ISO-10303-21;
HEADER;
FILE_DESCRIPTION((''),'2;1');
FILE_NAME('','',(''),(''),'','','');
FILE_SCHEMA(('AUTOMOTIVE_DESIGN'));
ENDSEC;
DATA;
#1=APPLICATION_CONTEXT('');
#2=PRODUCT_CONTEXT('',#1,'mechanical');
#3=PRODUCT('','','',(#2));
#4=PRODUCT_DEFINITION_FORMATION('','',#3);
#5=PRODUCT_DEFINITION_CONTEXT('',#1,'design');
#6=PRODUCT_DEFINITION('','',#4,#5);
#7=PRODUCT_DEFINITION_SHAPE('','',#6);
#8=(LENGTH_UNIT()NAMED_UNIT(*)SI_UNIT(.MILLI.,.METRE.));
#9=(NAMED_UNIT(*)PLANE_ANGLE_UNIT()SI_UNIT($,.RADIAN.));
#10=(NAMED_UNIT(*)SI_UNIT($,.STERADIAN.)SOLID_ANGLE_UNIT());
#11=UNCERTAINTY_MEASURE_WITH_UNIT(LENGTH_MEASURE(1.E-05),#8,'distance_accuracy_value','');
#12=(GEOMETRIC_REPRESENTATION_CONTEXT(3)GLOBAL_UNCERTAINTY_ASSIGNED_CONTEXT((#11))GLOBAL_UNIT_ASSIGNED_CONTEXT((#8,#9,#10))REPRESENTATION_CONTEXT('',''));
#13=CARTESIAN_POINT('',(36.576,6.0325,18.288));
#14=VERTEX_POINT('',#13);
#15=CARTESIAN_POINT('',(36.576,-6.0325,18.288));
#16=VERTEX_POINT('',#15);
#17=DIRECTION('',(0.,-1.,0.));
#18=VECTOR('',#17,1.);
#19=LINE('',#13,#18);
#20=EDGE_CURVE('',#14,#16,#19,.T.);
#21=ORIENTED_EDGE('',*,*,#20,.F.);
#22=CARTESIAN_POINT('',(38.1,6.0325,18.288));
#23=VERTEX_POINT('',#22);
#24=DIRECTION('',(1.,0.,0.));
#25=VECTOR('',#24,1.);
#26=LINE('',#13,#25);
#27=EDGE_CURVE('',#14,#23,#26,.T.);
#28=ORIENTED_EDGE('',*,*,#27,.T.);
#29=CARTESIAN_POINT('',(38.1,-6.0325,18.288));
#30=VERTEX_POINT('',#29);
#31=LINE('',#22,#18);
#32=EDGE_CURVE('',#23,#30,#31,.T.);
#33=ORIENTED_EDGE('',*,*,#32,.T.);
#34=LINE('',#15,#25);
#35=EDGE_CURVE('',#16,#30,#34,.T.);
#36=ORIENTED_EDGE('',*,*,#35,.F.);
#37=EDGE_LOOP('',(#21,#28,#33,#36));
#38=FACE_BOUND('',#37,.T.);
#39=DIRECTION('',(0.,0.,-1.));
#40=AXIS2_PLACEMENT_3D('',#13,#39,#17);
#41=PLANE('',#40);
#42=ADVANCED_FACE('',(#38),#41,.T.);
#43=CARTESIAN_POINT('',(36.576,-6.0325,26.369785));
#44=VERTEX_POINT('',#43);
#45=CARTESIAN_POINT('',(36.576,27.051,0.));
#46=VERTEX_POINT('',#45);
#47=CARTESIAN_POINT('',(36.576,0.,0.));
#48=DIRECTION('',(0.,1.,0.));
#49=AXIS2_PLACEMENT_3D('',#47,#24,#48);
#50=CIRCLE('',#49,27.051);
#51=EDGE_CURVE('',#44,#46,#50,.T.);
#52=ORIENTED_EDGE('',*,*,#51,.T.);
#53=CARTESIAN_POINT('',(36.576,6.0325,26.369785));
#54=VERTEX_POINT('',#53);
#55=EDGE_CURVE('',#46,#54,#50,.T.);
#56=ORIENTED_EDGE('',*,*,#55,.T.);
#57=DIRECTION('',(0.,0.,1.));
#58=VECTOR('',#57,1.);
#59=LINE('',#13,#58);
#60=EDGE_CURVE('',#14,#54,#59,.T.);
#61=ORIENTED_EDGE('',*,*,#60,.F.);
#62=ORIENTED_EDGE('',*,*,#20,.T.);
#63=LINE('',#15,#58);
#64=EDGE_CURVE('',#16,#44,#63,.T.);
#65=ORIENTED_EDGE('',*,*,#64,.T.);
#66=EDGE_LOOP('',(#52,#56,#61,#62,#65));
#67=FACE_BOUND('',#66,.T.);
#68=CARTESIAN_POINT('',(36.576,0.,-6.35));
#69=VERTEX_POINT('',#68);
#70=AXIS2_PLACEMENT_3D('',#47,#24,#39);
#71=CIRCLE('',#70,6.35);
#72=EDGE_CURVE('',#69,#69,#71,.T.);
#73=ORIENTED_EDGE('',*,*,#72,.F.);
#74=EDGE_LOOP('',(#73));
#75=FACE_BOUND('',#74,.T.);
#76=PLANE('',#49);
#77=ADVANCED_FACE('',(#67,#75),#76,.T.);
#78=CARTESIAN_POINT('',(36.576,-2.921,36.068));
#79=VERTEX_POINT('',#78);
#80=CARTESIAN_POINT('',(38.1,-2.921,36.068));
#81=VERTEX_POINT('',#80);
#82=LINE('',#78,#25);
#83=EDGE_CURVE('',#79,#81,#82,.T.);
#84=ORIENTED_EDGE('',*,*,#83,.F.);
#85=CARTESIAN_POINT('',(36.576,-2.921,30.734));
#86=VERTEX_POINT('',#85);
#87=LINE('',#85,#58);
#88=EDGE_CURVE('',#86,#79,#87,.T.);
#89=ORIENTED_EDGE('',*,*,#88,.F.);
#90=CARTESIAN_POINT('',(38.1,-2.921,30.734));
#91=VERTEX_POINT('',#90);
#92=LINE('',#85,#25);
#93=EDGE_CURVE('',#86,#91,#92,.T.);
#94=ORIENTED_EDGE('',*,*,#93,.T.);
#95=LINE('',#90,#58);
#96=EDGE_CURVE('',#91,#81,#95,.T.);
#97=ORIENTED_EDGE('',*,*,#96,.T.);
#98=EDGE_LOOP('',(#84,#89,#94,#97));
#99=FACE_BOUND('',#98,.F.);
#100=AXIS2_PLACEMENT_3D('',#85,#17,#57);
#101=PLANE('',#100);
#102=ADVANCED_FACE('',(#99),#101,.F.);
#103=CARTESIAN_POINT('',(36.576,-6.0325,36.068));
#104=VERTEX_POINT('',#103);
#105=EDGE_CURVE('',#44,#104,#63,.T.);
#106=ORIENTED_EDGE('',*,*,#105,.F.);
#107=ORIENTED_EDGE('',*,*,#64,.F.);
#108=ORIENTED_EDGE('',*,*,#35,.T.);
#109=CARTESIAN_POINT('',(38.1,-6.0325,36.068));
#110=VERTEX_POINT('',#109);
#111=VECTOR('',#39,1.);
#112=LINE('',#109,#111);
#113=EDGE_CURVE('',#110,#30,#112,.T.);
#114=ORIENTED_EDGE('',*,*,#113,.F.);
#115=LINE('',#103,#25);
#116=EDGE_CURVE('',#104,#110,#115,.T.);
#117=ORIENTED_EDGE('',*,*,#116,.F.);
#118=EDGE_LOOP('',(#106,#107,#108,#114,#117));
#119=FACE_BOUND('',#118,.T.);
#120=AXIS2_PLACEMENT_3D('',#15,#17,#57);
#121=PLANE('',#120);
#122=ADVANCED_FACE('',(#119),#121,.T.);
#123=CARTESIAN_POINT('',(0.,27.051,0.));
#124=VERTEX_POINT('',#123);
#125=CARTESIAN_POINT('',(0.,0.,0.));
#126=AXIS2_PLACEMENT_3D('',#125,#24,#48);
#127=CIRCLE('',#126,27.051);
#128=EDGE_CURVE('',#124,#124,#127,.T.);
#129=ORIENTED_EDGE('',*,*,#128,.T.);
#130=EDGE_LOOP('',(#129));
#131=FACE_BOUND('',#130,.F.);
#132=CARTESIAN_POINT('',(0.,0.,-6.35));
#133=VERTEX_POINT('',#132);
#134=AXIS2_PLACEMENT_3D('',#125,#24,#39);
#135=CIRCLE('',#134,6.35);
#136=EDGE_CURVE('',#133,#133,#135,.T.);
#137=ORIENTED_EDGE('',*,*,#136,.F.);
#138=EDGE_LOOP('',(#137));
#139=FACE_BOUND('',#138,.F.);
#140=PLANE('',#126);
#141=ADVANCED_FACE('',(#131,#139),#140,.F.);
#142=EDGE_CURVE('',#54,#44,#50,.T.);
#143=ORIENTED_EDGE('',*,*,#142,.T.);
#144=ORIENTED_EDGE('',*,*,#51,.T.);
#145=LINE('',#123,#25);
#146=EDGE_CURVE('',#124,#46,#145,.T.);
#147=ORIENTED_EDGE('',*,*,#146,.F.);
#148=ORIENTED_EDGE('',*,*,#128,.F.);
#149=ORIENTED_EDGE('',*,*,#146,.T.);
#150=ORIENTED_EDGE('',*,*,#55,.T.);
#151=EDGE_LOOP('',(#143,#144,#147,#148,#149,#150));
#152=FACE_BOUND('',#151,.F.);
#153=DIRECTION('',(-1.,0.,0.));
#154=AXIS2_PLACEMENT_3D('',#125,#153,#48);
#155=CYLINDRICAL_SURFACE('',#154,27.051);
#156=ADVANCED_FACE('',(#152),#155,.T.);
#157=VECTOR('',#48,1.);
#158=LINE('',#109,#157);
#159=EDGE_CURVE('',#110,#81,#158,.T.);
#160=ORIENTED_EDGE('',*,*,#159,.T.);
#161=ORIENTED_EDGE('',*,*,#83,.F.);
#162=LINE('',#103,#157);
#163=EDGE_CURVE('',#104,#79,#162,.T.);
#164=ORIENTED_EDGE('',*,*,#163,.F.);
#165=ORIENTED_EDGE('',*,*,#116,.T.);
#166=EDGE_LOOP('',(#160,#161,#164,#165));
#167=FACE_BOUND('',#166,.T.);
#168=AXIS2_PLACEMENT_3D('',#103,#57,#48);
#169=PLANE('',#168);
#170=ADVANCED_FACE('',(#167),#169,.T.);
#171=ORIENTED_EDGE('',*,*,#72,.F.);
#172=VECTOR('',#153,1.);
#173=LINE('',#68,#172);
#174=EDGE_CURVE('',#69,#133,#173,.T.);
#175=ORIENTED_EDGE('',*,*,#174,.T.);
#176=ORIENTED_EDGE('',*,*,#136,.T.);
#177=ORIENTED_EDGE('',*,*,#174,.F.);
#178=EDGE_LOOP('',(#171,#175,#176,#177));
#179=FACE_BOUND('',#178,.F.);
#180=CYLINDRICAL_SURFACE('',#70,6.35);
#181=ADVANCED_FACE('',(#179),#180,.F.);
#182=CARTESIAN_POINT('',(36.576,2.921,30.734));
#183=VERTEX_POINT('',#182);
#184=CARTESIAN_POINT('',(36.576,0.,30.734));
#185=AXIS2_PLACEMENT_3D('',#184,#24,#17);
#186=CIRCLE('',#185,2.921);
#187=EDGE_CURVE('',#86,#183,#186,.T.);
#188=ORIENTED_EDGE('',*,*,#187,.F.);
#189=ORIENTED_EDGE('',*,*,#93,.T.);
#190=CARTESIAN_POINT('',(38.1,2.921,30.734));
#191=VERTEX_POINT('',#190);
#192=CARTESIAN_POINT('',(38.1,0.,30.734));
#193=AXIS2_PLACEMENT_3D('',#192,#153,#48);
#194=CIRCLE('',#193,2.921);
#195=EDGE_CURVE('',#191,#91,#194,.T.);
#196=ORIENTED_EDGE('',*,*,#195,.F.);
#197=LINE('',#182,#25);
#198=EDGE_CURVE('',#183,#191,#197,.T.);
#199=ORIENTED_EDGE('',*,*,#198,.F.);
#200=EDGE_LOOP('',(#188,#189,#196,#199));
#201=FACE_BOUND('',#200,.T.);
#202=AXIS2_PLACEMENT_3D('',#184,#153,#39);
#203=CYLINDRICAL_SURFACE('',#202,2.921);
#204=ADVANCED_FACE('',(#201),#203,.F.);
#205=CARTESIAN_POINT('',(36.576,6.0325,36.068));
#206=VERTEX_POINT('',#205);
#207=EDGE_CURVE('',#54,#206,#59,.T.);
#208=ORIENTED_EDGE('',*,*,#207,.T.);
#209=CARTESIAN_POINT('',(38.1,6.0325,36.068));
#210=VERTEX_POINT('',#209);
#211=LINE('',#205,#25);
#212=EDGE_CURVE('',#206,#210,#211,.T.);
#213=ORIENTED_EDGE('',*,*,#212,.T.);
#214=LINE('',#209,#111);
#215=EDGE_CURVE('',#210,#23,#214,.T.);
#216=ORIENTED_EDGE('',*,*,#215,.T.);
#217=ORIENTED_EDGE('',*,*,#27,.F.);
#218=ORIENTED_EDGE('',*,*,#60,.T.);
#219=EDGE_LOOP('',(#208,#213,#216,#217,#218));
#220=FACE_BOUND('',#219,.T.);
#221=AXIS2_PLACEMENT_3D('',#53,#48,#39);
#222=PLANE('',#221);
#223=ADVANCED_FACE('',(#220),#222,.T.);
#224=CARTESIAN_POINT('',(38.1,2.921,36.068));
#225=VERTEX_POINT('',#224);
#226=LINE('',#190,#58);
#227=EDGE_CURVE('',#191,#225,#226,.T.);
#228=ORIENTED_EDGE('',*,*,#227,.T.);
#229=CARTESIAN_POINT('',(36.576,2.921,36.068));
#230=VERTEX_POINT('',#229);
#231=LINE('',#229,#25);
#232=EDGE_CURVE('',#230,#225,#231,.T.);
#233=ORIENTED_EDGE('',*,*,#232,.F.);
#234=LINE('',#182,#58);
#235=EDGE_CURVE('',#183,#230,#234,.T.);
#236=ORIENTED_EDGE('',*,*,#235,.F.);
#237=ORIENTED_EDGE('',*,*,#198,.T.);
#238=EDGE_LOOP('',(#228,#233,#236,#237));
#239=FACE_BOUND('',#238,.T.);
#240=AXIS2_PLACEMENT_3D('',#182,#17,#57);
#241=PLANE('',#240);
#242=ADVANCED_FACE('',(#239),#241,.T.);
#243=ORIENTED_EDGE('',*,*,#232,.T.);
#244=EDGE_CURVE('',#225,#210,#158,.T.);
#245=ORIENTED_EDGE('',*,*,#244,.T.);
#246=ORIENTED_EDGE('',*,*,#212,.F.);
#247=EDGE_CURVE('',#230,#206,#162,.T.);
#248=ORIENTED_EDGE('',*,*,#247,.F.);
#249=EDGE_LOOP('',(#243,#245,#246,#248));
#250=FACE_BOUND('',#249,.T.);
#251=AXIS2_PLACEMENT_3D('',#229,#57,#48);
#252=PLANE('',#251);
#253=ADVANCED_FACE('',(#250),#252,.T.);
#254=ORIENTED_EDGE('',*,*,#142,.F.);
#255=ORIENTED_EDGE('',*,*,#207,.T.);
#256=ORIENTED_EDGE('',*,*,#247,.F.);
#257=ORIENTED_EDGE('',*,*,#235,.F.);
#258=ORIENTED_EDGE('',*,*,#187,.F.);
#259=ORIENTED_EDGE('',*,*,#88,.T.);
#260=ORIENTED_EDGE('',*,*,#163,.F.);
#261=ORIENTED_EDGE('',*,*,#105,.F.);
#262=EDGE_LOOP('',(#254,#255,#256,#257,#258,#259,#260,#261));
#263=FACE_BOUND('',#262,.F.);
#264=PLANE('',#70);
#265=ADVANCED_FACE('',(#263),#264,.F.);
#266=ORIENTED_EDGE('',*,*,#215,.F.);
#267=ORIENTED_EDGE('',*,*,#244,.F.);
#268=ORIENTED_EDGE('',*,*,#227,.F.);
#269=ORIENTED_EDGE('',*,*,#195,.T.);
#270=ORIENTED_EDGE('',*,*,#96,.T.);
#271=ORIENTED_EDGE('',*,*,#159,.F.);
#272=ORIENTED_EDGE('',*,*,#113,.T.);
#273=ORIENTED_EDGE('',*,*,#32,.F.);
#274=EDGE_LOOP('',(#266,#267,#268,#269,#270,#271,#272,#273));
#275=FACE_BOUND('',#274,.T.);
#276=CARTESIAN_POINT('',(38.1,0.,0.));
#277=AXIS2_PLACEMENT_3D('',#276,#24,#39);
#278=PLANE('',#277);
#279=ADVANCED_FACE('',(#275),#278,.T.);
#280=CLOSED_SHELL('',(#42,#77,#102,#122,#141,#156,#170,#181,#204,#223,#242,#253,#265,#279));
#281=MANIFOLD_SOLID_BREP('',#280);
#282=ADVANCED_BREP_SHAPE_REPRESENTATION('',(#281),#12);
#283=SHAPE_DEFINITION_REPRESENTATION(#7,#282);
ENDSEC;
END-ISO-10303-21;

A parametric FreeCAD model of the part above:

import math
import FreeCAD as App
import Part
import Sketcher
Q = App.Units.Quantity

doc = App.newDocument("Part")
body = doc.addObject("PartDesign::Body", "Body")

sketch1 = body.newObject("Sketcher::SketchObject", "Sketch")
sketch1.AttachmentSupport = (doc.getObject("YZ_Plane"), [""])
sketch1.MapMode = "FlatFace"
sketch1.addGeometry(Part.Circle(App.Vector(0, 0, 0), App.Vector(0, 0, 1), 27), False)
sketch1.addConstraint([
    Sketcher.Constraint("Coincident", 0, 3, -1, 1),
    Sketcher.Constraint("Diameter", 0, Q("2.13 in")),
])
pad1 = body.newObject("PartDesign::Pad", "Pad")
pad1.Profile = sketch1
pad1.Length = Q("1.44 in")

sketch2 = body.newObject("Sketcher::SketchObject", "Sketch001")
sketch2.AttachmentSupport = (doc.getObject("YZ_Plane"), [""])
sketch2.MapMode = "FlatFace"
sketch2.AttachmentOffset = App.Placement(App.Vector(0, 0, 1.44 * 25.4), App.Rotation())
sketch2.addGeometry(Part.Circle(App.Vector(0, 0, 0), App.Vector(0, 0, 1), 6), False)
sketch2.addConstraint([
    Sketcher.Constraint("Coincident", 0, 3, -1, 1),
    Sketcher.Constraint("Diameter", 0, Q("0.5 in")),
])
pocket1 = body.newObject("PartDesign::Pocket", "Pocket")
pocket1.Profile = sketch2
pocket1.Type = "ThroughAll"

sketch3 = body.newObject("Sketcher::SketchObject", "Sketch002")
sketch3.AttachmentSupport = (doc.getObject("YZ_Plane"), [""])
sketch3.MapMode = "FlatFace"
sketch3.AttachmentOffset = App.Placement(App.Vector(0, 0, 1.44 * 25.4), App.Rotation())
sketch3.addGeometry([
    Part.LineSegment(App.Vector(6, 18.3, 0), App.Vector(6, 36.1, 0)),
    Part.LineSegment(App.Vector(6, 36.1, 0), App.Vector(2.9, 36.1, 0)),
    Part.LineSegment(App.Vector(2.9, 36.1, 0), App.Vector(2.9, 30.7, 0)),
    Part.ArcOfCircle(Part.Circle(App.Vector(0, 30.7, 0), App.Vector(0, 0, 1), 2.9), math.radians(180), math.radians(360)),
    Part.LineSegment(App.Vector(-2.9, 30.7, 0), App.Vector(-2.9, 36.1, 0)),
    Part.LineSegment(App.Vector(-2.9, 36.1, 0), App.Vector(-6, 36.1, 0)),
    Part.LineSegment(App.Vector(-6, 36.1, 0), App.Vector(-6, 18.3, 0)),
    Part.LineSegment(App.Vector(-6, 18.3, 0), App.Vector(6, 18.3, 0)),
], False)
sketch3.addConstraint([
    Sketcher.Constraint("Coincident", 0, 2, 1, 1),
    Sketcher.Constraint("Coincident", 1, 2, 2, 1),
    Sketcher.Constraint("Tangent", 2, 2, 3, 2),
    Sketcher.Constraint("Tangent", 3, 1, 4, 1),
    Sketcher.Constraint("Coincident", 4, 2, 5, 1),
    Sketcher.Constraint("Coincident", 5, 2, 6, 1),
    Sketcher.Constraint("Coincident", 6, 2, 7, 1),
    Sketcher.Constraint("Coincident", 7, 2, 0, 1),
    Sketcher.Constraint("Vertical", 0),
    Sketcher.Constraint("Horizontal", 1),
    Sketcher.Constraint("Vertical", 2),
    Sketcher.Constraint("Vertical", 4),
    Sketcher.Constraint("Horizontal", 5),
    Sketcher.Constraint("Vertical", 6),
    Sketcher.Constraint("Horizontal", 7),
    Sketcher.Constraint("Symmetric", 1, 2, 4, 2, -2),
    Sketcher.Constraint("Equal", 1, 5),
    Sketcher.Constraint("DistanceY", 0, 1, 0, 2, Q("0.7 in")),
    Sketcher.Constraint("Radius", 3, Q("0.115 in")),
    Sketcher.Constraint("DistanceY", 2, 2, 2, 1, Q("0.21 in")),
    Sketcher.Constraint("DistanceX", 7, 1, 7, 2, Q("0.475 in")),
    Sketcher.Constraint("DistanceY", -1, 1, 3, 3, Q("1.21 in")),
])
pad2 = body.newObject("PartDesign::Pad", "Pad001")
pad2.Profile = sketch3
pad2.Length = Q("0.06 in")

doc.recompute()
